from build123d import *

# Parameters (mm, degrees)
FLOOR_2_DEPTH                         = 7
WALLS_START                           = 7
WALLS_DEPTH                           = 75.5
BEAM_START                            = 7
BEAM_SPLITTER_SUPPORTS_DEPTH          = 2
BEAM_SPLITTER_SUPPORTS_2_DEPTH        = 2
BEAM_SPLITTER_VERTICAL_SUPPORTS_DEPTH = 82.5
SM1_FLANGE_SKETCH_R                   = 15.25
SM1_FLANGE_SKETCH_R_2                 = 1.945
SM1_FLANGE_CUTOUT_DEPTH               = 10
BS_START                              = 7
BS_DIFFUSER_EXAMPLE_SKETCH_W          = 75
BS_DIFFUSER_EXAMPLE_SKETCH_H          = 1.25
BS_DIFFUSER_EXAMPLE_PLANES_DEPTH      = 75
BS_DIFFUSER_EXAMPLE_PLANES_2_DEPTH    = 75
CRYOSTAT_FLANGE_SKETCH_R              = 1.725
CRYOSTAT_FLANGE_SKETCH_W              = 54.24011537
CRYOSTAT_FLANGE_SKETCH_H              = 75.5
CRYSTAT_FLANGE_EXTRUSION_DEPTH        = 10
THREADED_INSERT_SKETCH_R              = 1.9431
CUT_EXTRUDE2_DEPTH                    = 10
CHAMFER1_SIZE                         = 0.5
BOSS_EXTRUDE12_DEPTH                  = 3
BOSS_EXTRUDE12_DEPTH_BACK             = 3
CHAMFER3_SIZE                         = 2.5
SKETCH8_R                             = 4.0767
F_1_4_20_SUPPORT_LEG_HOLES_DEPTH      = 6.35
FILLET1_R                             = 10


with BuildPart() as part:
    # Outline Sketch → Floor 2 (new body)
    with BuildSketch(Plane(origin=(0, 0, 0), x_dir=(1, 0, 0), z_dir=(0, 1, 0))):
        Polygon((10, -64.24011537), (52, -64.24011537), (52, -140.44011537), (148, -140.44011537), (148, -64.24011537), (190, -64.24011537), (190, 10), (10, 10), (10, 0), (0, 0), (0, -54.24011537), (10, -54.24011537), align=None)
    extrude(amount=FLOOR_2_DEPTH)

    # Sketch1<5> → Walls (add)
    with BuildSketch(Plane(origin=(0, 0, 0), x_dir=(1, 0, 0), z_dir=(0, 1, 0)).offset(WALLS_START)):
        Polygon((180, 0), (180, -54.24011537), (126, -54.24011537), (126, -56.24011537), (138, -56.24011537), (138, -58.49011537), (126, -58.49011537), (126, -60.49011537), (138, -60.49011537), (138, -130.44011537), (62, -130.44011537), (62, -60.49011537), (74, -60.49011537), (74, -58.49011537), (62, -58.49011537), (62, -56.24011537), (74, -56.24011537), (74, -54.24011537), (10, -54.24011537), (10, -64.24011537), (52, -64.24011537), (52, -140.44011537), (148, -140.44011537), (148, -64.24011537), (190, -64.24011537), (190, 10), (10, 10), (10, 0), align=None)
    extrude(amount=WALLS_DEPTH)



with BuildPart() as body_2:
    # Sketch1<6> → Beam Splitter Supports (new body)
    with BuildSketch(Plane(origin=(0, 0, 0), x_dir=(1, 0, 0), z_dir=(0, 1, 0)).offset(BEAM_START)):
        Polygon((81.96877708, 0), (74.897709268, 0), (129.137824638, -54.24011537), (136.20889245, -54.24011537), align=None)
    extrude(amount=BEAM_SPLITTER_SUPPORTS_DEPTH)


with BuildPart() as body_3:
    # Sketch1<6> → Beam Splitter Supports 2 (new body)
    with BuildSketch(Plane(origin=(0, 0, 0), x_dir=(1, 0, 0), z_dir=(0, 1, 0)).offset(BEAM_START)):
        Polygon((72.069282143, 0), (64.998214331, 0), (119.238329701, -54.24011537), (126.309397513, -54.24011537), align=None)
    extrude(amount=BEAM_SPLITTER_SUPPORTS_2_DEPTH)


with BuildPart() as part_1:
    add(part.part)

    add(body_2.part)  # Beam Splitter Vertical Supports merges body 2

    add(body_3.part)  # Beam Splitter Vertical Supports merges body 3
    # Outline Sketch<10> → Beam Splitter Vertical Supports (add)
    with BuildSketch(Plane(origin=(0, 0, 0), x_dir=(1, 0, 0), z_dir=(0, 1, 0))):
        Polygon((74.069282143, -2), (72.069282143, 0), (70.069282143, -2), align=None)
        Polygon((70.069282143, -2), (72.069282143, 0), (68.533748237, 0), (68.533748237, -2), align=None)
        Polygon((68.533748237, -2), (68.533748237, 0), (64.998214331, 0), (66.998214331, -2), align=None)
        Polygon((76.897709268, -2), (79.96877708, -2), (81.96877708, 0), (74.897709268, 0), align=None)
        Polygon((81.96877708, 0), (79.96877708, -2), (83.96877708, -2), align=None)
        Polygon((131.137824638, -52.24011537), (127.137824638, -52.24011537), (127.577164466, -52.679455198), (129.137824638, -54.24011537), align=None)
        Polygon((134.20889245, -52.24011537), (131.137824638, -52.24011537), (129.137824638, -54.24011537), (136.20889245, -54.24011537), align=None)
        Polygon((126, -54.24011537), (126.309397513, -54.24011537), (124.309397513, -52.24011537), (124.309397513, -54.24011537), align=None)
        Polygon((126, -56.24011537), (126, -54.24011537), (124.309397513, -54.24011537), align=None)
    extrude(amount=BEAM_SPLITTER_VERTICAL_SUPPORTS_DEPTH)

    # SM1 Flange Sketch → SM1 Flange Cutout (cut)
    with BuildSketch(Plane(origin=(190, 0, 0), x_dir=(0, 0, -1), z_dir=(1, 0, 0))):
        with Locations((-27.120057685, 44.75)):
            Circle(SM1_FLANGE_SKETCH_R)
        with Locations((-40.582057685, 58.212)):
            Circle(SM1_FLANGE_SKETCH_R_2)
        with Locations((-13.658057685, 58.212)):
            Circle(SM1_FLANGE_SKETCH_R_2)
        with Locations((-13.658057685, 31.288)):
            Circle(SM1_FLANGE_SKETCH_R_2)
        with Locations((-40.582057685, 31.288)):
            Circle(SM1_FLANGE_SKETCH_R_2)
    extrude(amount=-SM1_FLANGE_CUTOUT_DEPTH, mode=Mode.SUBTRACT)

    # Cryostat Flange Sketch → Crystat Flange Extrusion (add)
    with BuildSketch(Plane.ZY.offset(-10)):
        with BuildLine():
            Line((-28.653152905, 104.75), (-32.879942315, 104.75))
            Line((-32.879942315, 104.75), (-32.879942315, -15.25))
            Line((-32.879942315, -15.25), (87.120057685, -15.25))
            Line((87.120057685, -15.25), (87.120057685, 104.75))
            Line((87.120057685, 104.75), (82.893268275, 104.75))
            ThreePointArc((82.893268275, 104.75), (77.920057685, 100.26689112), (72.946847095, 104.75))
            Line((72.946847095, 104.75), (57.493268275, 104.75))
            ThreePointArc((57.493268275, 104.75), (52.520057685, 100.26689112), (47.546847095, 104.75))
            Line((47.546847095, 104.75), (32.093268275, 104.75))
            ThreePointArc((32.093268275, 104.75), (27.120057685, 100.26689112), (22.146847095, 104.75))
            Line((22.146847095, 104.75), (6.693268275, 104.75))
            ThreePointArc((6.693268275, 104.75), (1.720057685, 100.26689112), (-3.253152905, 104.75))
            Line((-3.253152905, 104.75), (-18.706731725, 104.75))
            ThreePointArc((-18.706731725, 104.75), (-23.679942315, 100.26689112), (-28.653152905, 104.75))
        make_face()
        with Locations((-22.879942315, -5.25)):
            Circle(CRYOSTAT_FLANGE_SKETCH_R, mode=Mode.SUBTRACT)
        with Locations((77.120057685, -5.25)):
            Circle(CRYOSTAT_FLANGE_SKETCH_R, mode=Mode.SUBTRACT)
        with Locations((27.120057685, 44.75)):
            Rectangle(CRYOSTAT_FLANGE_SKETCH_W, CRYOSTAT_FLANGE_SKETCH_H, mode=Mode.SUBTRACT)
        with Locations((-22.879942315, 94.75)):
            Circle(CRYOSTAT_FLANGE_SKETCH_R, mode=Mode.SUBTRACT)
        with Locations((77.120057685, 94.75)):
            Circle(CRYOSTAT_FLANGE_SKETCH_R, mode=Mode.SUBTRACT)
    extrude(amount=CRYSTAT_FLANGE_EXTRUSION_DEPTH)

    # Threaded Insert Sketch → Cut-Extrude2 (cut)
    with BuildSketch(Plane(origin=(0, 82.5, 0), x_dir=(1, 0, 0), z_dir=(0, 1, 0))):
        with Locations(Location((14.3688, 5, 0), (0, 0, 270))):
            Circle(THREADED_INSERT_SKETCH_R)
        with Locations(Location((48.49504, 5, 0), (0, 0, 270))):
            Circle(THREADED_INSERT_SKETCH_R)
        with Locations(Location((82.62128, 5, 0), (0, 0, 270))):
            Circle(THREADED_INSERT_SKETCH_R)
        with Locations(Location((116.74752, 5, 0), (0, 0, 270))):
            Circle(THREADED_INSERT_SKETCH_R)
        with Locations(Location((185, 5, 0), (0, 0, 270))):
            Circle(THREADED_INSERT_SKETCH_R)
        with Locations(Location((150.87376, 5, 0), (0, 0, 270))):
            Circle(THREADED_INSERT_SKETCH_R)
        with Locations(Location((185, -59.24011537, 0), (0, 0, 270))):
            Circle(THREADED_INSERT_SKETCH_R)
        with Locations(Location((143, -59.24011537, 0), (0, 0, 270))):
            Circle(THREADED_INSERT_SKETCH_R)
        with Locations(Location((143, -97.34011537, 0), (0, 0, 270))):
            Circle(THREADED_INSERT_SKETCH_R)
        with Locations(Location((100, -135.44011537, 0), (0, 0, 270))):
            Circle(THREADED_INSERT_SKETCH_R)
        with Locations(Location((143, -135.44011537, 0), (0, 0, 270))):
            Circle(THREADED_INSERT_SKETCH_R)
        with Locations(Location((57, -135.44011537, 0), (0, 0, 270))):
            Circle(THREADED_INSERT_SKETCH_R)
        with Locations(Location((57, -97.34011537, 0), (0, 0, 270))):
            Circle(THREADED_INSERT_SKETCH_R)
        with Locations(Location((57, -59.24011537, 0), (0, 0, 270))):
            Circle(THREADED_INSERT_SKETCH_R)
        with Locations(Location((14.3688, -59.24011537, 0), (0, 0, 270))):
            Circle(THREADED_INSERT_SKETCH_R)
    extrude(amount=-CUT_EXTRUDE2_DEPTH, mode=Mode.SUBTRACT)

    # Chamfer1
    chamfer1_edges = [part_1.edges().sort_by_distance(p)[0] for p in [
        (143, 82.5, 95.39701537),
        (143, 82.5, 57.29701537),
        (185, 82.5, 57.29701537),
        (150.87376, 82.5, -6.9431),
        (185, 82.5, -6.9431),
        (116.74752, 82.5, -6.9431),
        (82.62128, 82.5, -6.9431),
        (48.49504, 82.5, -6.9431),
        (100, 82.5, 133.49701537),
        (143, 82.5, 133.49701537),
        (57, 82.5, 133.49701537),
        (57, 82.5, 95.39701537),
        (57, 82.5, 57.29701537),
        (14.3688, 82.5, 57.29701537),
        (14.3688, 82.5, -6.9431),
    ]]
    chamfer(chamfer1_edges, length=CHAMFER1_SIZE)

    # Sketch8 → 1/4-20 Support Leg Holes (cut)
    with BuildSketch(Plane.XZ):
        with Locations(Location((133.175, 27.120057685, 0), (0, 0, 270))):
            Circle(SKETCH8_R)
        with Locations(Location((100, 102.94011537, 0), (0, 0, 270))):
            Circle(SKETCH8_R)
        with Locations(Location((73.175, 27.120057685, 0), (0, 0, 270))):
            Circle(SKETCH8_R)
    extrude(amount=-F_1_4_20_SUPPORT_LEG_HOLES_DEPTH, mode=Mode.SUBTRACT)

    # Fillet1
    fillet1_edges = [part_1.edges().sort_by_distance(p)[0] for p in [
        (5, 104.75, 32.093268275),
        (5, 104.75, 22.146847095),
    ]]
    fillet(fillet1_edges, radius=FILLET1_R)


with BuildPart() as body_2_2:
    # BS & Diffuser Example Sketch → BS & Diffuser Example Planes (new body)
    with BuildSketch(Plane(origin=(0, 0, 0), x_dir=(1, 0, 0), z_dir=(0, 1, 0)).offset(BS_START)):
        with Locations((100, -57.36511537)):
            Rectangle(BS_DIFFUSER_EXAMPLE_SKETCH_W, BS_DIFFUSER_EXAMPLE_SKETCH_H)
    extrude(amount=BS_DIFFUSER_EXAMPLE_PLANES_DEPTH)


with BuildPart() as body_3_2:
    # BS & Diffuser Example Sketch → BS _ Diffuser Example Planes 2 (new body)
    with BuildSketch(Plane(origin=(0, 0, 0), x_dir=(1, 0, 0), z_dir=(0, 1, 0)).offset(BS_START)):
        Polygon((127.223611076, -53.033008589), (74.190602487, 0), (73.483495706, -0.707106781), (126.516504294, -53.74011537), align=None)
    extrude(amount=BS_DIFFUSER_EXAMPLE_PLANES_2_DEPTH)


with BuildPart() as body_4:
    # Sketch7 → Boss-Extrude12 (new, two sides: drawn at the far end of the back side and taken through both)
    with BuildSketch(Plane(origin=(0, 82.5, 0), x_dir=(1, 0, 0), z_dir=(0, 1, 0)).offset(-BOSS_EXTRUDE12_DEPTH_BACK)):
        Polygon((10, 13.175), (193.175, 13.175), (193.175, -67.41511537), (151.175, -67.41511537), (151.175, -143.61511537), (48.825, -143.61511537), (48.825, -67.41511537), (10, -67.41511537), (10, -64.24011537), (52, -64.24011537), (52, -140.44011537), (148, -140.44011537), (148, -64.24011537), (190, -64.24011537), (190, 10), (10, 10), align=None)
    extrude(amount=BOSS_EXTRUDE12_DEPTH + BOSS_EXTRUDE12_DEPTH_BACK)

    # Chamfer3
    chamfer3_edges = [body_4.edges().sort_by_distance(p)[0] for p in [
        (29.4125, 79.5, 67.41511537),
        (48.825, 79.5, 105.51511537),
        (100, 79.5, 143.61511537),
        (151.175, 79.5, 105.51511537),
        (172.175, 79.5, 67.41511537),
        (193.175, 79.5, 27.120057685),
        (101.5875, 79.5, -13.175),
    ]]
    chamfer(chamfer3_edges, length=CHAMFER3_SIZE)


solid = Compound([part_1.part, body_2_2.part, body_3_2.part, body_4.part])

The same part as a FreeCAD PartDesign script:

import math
import FreeCAD as App
import Part
import Sketcher

V = App.Vector
Q = App.Units.Quantity


def edges_at(feature, points):
    """Names of the edges that pass closest to the given points."""
    edges = feature.Shape.Edges
    near = lambda p: min(range(len(edges)), key=lambda i: edges[i].distToShape(Part.Vertex(*p))[0])
    return sorted({f"Edge{near(p) + 1}" for p in points})


def add_polygon(sketch, points):
    """Adds a closed chain of lines whose ends are joined by coincident constraints."""
    first, n = sketch.GeometryCount, len(points)
    for a, b in zip(points, points[1:] + points[:1]):
        sketch.addGeometry(Part.LineSegment(App.Vector(*a, 0), App.Vector(*b, 0)), False)
    for i in range(n):
        sketch.addConstraint(Sketcher.Constraint("Coincident", first + i, 2, first + (i + 1) % n, 1))

doc = App.newDocument("Part")
body = doc.addObject("PartDesign::Body", "Body")

sketch1 = body.newObject("Sketcher::SketchObject", "Sketch")
sketch1.AttachmentSupport = (doc.getObject("XZ_Plane"), [""])
sketch1.MapMode = "FlatFace"
add_polygon(sketch1, [(10, 64), (52, 64), (52, 140), (148, 140), (148, 64), (190, 64), (190, -10), (10, -10), (10, 0), (0, 0), (0, 54), (10, 54)])
sketch1.addConstraint(Sketcher.Constraint("Horizontal", 0))
sketch1.addConstraint(Sketcher.Constraint("Vertical", 1))
sketch1.addConstraint(Sketcher.Constraint("Horizontal", 2))
sketch1.addConstraint(Sketcher.Constraint("Vertical", 3))
sketch1.addConstraint(Sketcher.Constraint("Horizontal", 4))
sketch1.addConstraint(Sketcher.Constraint("Vertical", 5))
sketch1.addConstraint(Sketcher.Constraint("Horizontal", 6))
sketch1.addConstraint(Sketcher.Constraint("Vertical", 7))
sketch1.addConstraint(Sketcher.Constraint("Horizontal", 8))
sketch1.addConstraint(Sketcher.Constraint("Vertical", 9))
sketch1.addConstraint(Sketcher.Constraint("Horizontal", 10))
sketch1.addConstraint(Sketcher.Constraint("Vertical", 11))
sketch1.addConstraint(Sketcher.Constraint("Coincident", 8, 2, -1, 1))
sketch1.addConstraint(Sketcher.Constraint("Horizontal", 0, 2, 3, 2))
sketch1.addConstraint(Sketcher.Constraint("Vertical", 7, 2, 10, 2))
sketch1.addConstraint(Sketcher.Constraint("Equal", 0, 4))
sketch1.addConstraint(Sketcher.Constraint("Equal", 10, 7))
sketch1.addConstraint(Sketcher.Constraint("Equal", 7, 11))
sketch1.addConstraint(Sketcher.Constraint("DistanceX", 0, 1, 0, 2, 42.0))
sketch1.addConstraint(Sketcher.Constraint("DistanceX", 2, 1, 2, 2, 96.0))
sketch1.addConstraint(Sketcher.Constraint("DistanceX", 8, 2, 8, 1, 10.0))
sketch1.addConstraint(Sketcher.Constraint("DistanceY", 1, 1, 1, 2, 76.2))
sketch1.addConstraint(Sketcher.Constraint("DistanceY", 5, 2, 5, 1, 74.240115))
pad1 = body.newObject("PartDesign::Pad", "Pad")
pad1.Profile = sketch1
pad1.Length = 7
pad1.Reversed = True

sketch2 = body.newObject("Sketcher::SketchObject", "Sketch001")
sketch2.AttachmentSupport = (doc.getObject("XZ_Plane"), [""])
sketch2.MapMode = "FlatFace"
sketch2.AttachmentOffset = App.Placement(V(0, 0, -7), App.Rotation())
add_polygon(sketch2, [(180, 0), (180, 54.2), (126, 54.2), (126, 56.2), (138, 56.2), (138, 58.5), (126, 58.5), (126, 60.5), (138, 60.5), (138, 130.4), (62, 130.4), (62, 60.5), (74, 60.5), (74, 58.5), (62, 58.5), (62, 56.2), (74, 56.2), (74, 54.2), (10, 54.2), (10, 64.2), (52, 64.2), (52, 140.4), (148, 140.4), (148, 64.2), (190, 64.2), (190, -10), (10, -10), (10, 0)])
sketch2.addConstraint(Sketcher.Constraint("Vertical", 0))
sketch2.addConstraint(Sketcher.Constraint("Horizontal", 1))
sketch2.addConstraint(Sketcher.Constraint("Vertical", 2))
sketch2.addConstraint(Sketcher.Constraint("Horizontal", 3))
sketch2.addConstraint(Sketcher.Constraint("Vertical", 4))
sketch2.addConstraint(Sketcher.Constraint("Horizontal", 5))
sketch2.addConstraint(Sketcher.Constraint("Vertical", 6))
sketch2.addConstraint(Sketcher.Constraint("Horizontal", 7))
sketch2.addConstraint(Sketcher.Constraint("Vertical", 8))
sketch2.addConstraint(Sketcher.Constraint("Horizontal", 9))
sketch2.addConstraint(Sketcher.Constraint("Vertical", 10))
sketch2.addConstraint(Sketcher.Constraint("Horizontal", 11))
sketch2.addConstraint(Sketcher.Constraint("Vertical", 12))
sketch2.addConstraint(Sketcher.Constraint("Horizontal", 13))
sketch2.addConstraint(Sketcher.Constraint("Vertical", 14))
sketch2.addConstraint(Sketcher.Constraint("Horizontal", 15))
sketch2.addConstraint(Sketcher.Constraint("Vertical", 16))
sketch2.addConstraint(Sketcher.Constraint("Horizontal", 17))
sketch2.addConstraint(Sketcher.Constraint("Vertical", 18))
sketch2.addConstraint(Sketcher.Constraint("Horizontal", 19))
sketch2.addConstraint(Sketcher.Constraint("Vertical", 20))
sketch2.addConstraint(Sketcher.Constraint("Horizontal", 21))
sketch2.addConstraint(Sketcher.Constraint("Vertical", 22))
sketch2.addConstraint(Sketcher.Constraint("Horizontal", 23))
sketch2.addConstraint(Sketcher.Constraint("Vertical", 24))
sketch2.addConstraint(Sketcher.Constraint("Horizontal", 25))
sketch2.addConstraint(Sketcher.Constraint("Vertical", 26))
sketch2.addConstraint(Sketcher.Constraint("Horizontal", 27))
sketch2.addConstraint(Sketcher.Constraint("PointOnObject", 26, 2, -1))
sketch2.addConstraint(Sketcher.Constraint("Horizontal", 7, 2, 10, 2))
sketch2.addConstraint(Sketcher.Constraint("Horizontal", 5, 2, 12, 2))
sketch2.addConstraint(Sketcher.Constraint("Horizontal", 3, 2, 14, 2))
sketch2.addConstraint(Sketcher.Constraint("Horizontal", 1, 2, 16, 2))
sketch2.addConstraint(Sketcher.Constraint("Horizontal", 19, 2, 22, 2))
sketch2.addConstraint(Sketcher.Constraint("Vertical", 2, 2, 5, 2))
sketch2.addConstraint(Sketcher.Constraint("Vertical", 4, 2, 7, 2))
sketch2.addConstraint(Sketcher.Constraint("Vertical", 10, 2, 13, 2))
sketch2.addConstraint(Sketcher.Constraint("Vertical", 12, 2, 15, 2))
sketch2.addConstraint(Sketcher.Constraint("Vertical", 18, 2, 25, 2))
sketch2.addConstraint(Sketcher.Constraint("Equal", 7, 11))
sketch2.addConstraint(Sketcher.Constraint("Equal", 19, 23))
sketch2.addConstraint(Sketcher.Constraint("Equal", 2, 6))
sketch2.addConstraint(Sketcher.Constraint("Equal", 18, 26))
sketch2.addConstraint(Sketcher.Constraint("DistanceX", 1, 2, 1, 1, 54.0))
sketch2.addConstraint(Sketcher.Constraint("DistanceX", 3, 1, 3, 2, 12.0))
sketch2.addConstraint(Sketcher.Constraint("DistanceX", 9, 2, 9, 1, 76.0))
sketch2.addConstraint(Sketcher.Constraint("DistanceX", 17, 2, 17, 1, 64.0))
sketch2.addConstraint(Sketcher.Constraint("DistanceX", 19, 1, 19, 2, 42.0))
sketch2.addConstraint(Sketcher.Constraint("DistanceX", 21, 1, 21, 2, 96.0))
sketch2.addConstraint(Sketcher.Constraint("DistanceY", 2, 1, 2, 2, 2.0))
sketch2.addConstraint(Sketcher.Constraint("DistanceY", 18, 1, 18, 2, 10.0))
sketch2.addConstraint(Sketcher.Constraint("DistanceY", 20, 1, 20, 2, 76.2))
sketch2.addConstraint(Sketcher.Constraint("DistanceX", -1, 1, 0, 2, 180.0))
sketch2.addConstraint(Sketcher.Constraint("DistanceY", 9, 2, 20, 2, 10.0))
sketch2.addConstraint(Sketcher.Constraint("DistanceY", 4, 1, 4, 2, 2.25))
sketch2.addConstraint(Sketcher.Constraint("DistanceY", 0, 1, 0, 2, 54.240115))
pad2 = body.newObject("PartDesign::Pad", "Pad001")
pad2.Profile = sketch2
pad2.Length = 75.5
pad2.Reversed = True
body2 = doc.addObject("PartDesign::Body", "Body001")

sketch3 = body2.newObject("Sketcher::SketchObject", "Sketch002")
sketch3.AttachmentSupport = (doc.getObject("XZ_Plane001"), [""])
sketch3.MapMode = "FlatFace"
sketch3.AttachmentOffset = App.Placement(V(0, 0, -7), App.Rotation())
add_polygon(sketch3, [(82, 0), (75, 0), (129, 54), (136, 54)])
sketch3.addConstraint(Sketcher.Constraint("Horizontal", 0))
sketch3.addConstraint(Sketcher.Constraint("Horizontal", 2))
sketch3.addConstraint(Sketcher.Constraint("PointOnObject", 0, 2, -1))
sketch3.addConstraint(Sketcher.Constraint("Parallel", 1, 3))
sketch3.addConstraint(Sketcher.Constraint("Angle", 1, Q("45 deg")))
sketch3.addConstraint(Sketcher.Constraint("DistanceX", 0, 2, 0, 1, 7.071068))
sketch3.addConstraint(Sketcher.Constraint("DistanceX", -1, 1, 0, 2, 74.897709))
sketch3.addConstraint(Sketcher.Constraint("Distance", 1, 76.707107))
pad3 = body2.newObject("PartDesign::Pad", "Pad002")
pad3.Profile = sketch3
pad3.Length = 2
pad3.Reversed = True
body3 = doc.addObject("PartDesign::Body", "Body002")

sketch4 = body3.newObject("Sketcher::SketchObject", "Sketch003")
sketch4.AttachmentSupport = (doc.getObject("XZ_Plane002"), [""])
sketch4.MapMode = "FlatFace"
sketch4.AttachmentOffset = App.Placement(V(0, 0, -7), App.Rotation())
add_polygon(sketch4, [(72, 0), (65, 0), (119, 54), (126, 54)])
sketch4.addConstraint(Sketcher.Constraint("Horizontal", 0))
sketch4.addConstraint(Sketcher.Constraint("Horizontal", 2))
sketch4.addConstraint(Sketcher.Constraint("PointOnObject", 0, 2, -1))
sketch4.addConstraint(Sketcher.Constraint("Parallel", 1, 3))
sketch4.addConstraint(Sketcher.Constraint("Angle", 1, Q("45 deg")))
sketch4.addConstraint(Sketcher.Constraint("DistanceX", 0, 2, 0, 1, 7.071068))
sketch4.addConstraint(Sketcher.Constraint("DistanceX", -1, 1, 1, 2, 119.23833))
sketch4.addConstraint(Sketcher.Constraint("Distance", 1, 76.707107))
pad4 = body3.newObject("PartDesign::Pad", "Pad003")
pad4.Profile = sketch4
pad4.Length = 2
pad4.Reversed = True
doc.recompute()

boolean = body.newObject("PartDesign::Boolean", "Boolean")
boolean.Type = "Fuse"
boolean.addObjects([body2])
doc.recompute()

boolean2 = body.newObject("PartDesign::Boolean", "Boolean001")
boolean2.Type = "Fuse"
boolean2.addObjects([body3])

sketch5 = body.newObject("Sketcher::SketchObject", "Sketch004")
sketch5.AttachmentSupport = (doc.getObject("XZ_Plane"), [""])
sketch5.MapMode = "FlatFace"
add_polygon(sketch5, [(74.07, 2), (72.07, 0), (65, 0), (67, 2)])
add_polygon(sketch5, [(76.9, 2), (83.97, 2), (81.97, 0), (74.9, 0)])
add_polygon(sketch5, [(127.14, 52.24), (129.14, 54.24), (136.21, 54.24), (134.21, 52.24)])
add_polygon(sketch5, [(126.31, 54.24), (124.31, 52.24), (124.31, 54.24), (126, 56.24), (126, 54.24)])
sketch5.addConstraint(Sketcher.Constraint("Horizontal", 1))
sketch5.addConstraint(Sketcher.Constraint("Horizontal", 3))
sketch5.addConstraint(Sketcher.Constraint("Horizontal", 4))
sketch5.addConstraint(Sketcher.Constraint("Horizontal", 6))
sketch5.addConstraint(Sketcher.Constraint("Horizontal", 9))
sketch5.addConstraint(Sketcher.Constraint("Horizontal", 11))
sketch5.addConstraint(Sketcher.Constraint("Vertical", 13))
sketch5.addConstraint(Sketcher.Constraint("Vertical", 15))
sketch5.addConstraint(Sketcher.Constraint("Horizontal", 16))
sketch5.addConstraint(Sketcher.Constraint("PointOnObject", 0, 2, -1))
sketch5.addConstraint(Sketcher.Constraint("PointOnObject", 5, 2, -1))
sketch5.addConstraint(Sketcher.Constraint("Parallel", 0, 2))
sketch5.addConstraint(Sketcher.Constraint("Parallel", 2, 5))
sketch5.addConstraint(Sketcher.Constraint("Parallel", 5, 7))
sketch5.addConstraint(Sketcher.Constraint("Parallel", 7, 8))
sketch5.addConstraint(Sketcher.Constraint("Parallel", 8, 10))
sketch5.addConstraint(Sketcher.Constraint("Parallel", 10, 12))
sketch5.addConstraint(Sketcher.Constraint("Horizontal", 3, 2, 4, 2))
sketch5.addConstraint(Sketcher.Constraint("Horizontal", 11, 2, 12, 2))
sketch5.addConstraint(Sketcher.Constraint("Horizontal", 9, 2, 13, 2))
sketch5.addConstraint(Sketcher.Constraint("Horizontal", 13, 2, 15, 2))
sketch5.addConstraint(Sketcher.Constraint("Equal", 3, 4))
sketch5.addConstraint(Sketcher.Constraint("Equal", 6, 9))
sketch5.addConstraint(Sketcher.Constraint("Equal", 13, 15))
sketch5.addConstraint(Sketcher.Constraint("Equal", 7, 8))
sketch5.addConstraint(Sketcher.Constraint("DistanceY", 13, 1, 13, 2, 2.0))
sketch5.addConstraint(Sketcher.Constraint("Angle", 0, Q("-135 deg")))
sketch5.addConstraint(Sketcher.Constraint("DistanceX", -1, 1, 14, 2, 126.0))
sketch5.addConstraint(Sketcher.Constraint("DistanceX", 1, 2, 1, 1, 7.071068))
sketch5.addConstraint(Sketcher.Constraint("DistanceX", 16, 1, 16, 2, 0.309398))
sketch5.addConstraint(Sketcher.Constraint("DistanceX", -1, 1, 6, 2, 74.897709))
sketch5.addConstraint(Sketcher.Constraint("DistanceX", 3, 2, 9, 2, 62.13961))
sketch5.addConstraint(Sketcher.Constraint("DistanceX", -1, 1, 0, 2, 72.069282))
sketch5.addConstraint(Sketcher.Constraint("DistanceY", -1, 1, 8, 2, 54.240115))
pad5 = body.newObject("PartDesign::Pad", "Pad004")
pad5.Profile = sketch5
pad5.Length = 82.5
pad5.Reversed = True

sketch6 = body.newObject("Sketcher::SketchObject", "Sketch005")
sketch6.AttachmentSupport = (doc.getObject("YZ_Plane"), [""])
sketch6.MapMode = "FlatFace"
sketch6.AttachmentOffset = App.Placement(V(0, 0, 190), App.Rotation())
sketch6.addGeometry(Part.Circle(V(44.8, 27.1, 0), V(0, 0, 1), 15.2), False)
sketch6.addGeometry(Part.Circle(V(58.2, 40.6, 0), V(0, 0, 1), 1.9), False)
sketch6.addGeometry(Part.Circle(V(58.2, 13.7, 0), V(0, 0, 1), 1.9), False)
sketch6.addGeometry(Part.Circle(V(31.3, 13.7, 0), V(0, 0, 1), 1.9), False)
sketch6.addGeometry(Part.Circle(V(31.3, 40.6, 0), V(0, 0, 1), 1.9), False)
sketch6.addConstraint(Sketcher.Constraint("Equal", 1, 2))
sketch6.addConstraint(Sketcher.Constraint("Equal", 2, 3))
sketch6.addConstraint(Sketcher.Constraint("Equal", 3, 4))
sketch6.addConstraint(Sketcher.Constraint("Horizontal", 2, 3, 3, 3))
sketch6.addConstraint(Sketcher.Constraint("Horizontal", 1, 3, 4, 3))
sketch6.addConstraint(Sketcher.Constraint("Vertical", 1, 3, 2, 3))
sketch6.addConstraint(Sketcher.Constraint("Vertical", 3, 3, 4, 3))
sketch6.addConstraint(Sketcher.Constraint("Diameter", 0, 30.5))
sketch6.addConstraint(Sketcher.Constraint("Diameter", 1, 3.89))
sketch6.addConstraint(Sketcher.Constraint("DistanceX", -1, 1, 0, 3, 44.75))
sketch6.addConstraint(Sketcher.Constraint("DistanceX", -1, 1, 1, 3, 58.212))
sketch6.addConstraint(Sketcher.Constraint("DistanceX", -1, 1, 3, 3, 31.288))
sketch6.addConstraint(Sketcher.Constraint("DistanceY", 0, 3, 1, 3, 13.462))
sketch6.addConstraint(Sketcher.Constraint("DistanceY", 2, 3, 0, 3, 13.462))
sketch6.addConstraint(Sketcher.Constraint("DistanceY", -1, 1, 0, 3, 27.120058))
pocket1 = body.newObject("PartDesign::Pocket", "Pocket")
pocket1.Profile = sketch6
pocket1.Length = 10

sketch7 = body.newObject("Sketcher::SketchObject", "Sketch006")
sketch7.AttachmentSupport = (doc.getObject("YZ_Plane"), [""])
sketch7.MapMode = "FlatFace"
sketch7.AttachmentOffset = App.Placement(V(0, 0, 10), App.Rotation())
sketch7.addGeometry(Part.LineSegment(V(104.8, -28.7, 0), V(104.8, -32.9, 0)), False)
sketch7.addGeometry(Part.LineSegment(V(104.8, -32.9, 0), V(-15.2, -32.9, 0)), False)
sketch7.addGeometry(Part.LineSegment(V(-15.2, -32.9, 0), V(-15.2, 87.1, 0)), False)
sketch7.addGeometry(Part.LineSegment(V(-15.2, 87.1, 0), V(104.8, 87.1, 0)), False)
sketch7.addGeometry(Part.LineSegment(V(104.8, 87.1, 0), V(104.8, 82.9, 0)), False)
sketch7.addGeometry(Part.ArcOfCircle(Part.Circle(V(105.3, 77.9, 0), V(0, 0, 1), 5), math.radians(96), math.radians(264)), False)
sketch7.addGeometry(Part.LineSegment(V(104.8, 72.9, 0), V(104.8, 57.5, 0)), False)
sketch7.addGeometry(Part.ArcOfCircle(Part.Circle(V(105.3, 52.5, 0), V(0, 0, 1), 5), math.radians(96), math.radians(264)), False)
sketch7.addGeometry(Part.LineSegment(V(104.8, 47.5, 0), V(104.8, 32.1, 0)), False)
sketch7.addGeometry(Part.ArcOfCircle(Part.Circle(V(105.3, 27.1, 0), V(0, 0, 1), 5), math.radians(96), math.radians(264)), False)
sketch7.addGeometry(Part.LineSegment(V(104.8, 22.1, 0), V(104.8, 6.7, 0)), False)
sketch7.addGeometry(Part.ArcOfCircle(Part.Circle(V(105.3, 1.7, 0), V(0, 0, 1), 5), math.radians(96), math.radians(264)), False)
sketch7.addGeometry(Part.LineSegment(V(104.8, -3.3, 0), V(104.8, -18.7, 0)), False)
sketch7.addGeometry(Part.ArcOfCircle(Part.Circle(V(105.3, -23.7, 0), V(0, 0, 1), 5), math.radians(96), math.radians(264)), False)
sketch7.addGeometry(Part.Circle(V(-5.2, -22.9, 0), V(0, 0, 1), 1.7), False)
sketch7.addGeometry(Part.Circle(V(-5.2, 77.1, 0), V(0, 0, 1), 1.7), False)
sketch7.addGeometry(Part.Circle(V(94.8, -22.9, 0), V(0, 0, 1), 1.7), False)
add_polygon(sketch7, [(7, 54.2), (7, 0), (82.5, 0), (82.5, 54.2)])
sketch7.addGeometry(Part.Circle(V(94.8, 77.1, 0), V(0, 0, 1), 1.7), False)
sketch7.addConstraint(Sketcher.Constraint("Coincident", 0, 2, 1, 1))
sketch7.addConstraint(Sketcher.Constraint("Coincident", 1, 2, 2, 1))
sketch7.addConstraint(Sketcher.Constraint("Coincident", 2, 2, 3, 1))
sketch7.addConstraint(Sketcher.Constraint("Coincident", 3, 2, 4, 1))
sketch7.addConstraint(Sketcher.Constraint("Coincident", 4, 2, 5, 1))
sketch7.addConstraint(Sketcher.Constraint("Coincident", 5, 2, 6, 1))
sketch7.addConstraint(Sketcher.Constraint("Coincident", 6, 2, 7, 1))
sketch7.addConstraint(Sketcher.Constraint("Coincident", 7, 2, 8, 1))
sketch7.addConstraint(Sketcher.Constraint("Coincident", 8, 2, 9, 1))
sketch7.addConstraint(Sketcher.Constraint("Coincident", 9, 2, 10, 1))
sketch7.addConstraint(Sketcher.Constraint("Coincident", 10, 2, 11, 1))
sketch7.addConstraint(Sketcher.Constraint("Coincident", 11, 2, 12, 1))
sketch7.addConstraint(Sketcher.Constraint("Coincident", 12, 2, 13, 1))
sketch7.addConstraint(Sketcher.Constraint("Coincident", 13, 2, 0, 1))
sketch7.addConstraint(Sketcher.Constraint("Vertical", 0))
sketch7.addConstraint(Sketcher.Constraint("Horizontal", 1))
sketch7.addConstraint(Sketcher.Constraint("Vertical", 2))
sketch7.addConstraint(Sketcher.Constraint("Horizontal", 3))
sketch7.addConstraint(Sketcher.Constraint("Vertical", 4))
sketch7.addConstraint(Sketcher.Constraint("Vertical", 6))
sketch7.addConstraint(Sketcher.Constraint("Vertical", 8))
sketch7.addConstraint(Sketcher.Constraint("Vertical", 10))
sketch7.addConstraint(Sketcher.Constraint("Vertical", 12))
sketch7.addConstraint(Sketcher.Constraint("Vertical", 17))
sketch7.addConstraint(Sketcher.Constraint("Horizontal", 18))
sketch7.addConstraint(Sketcher.Constraint("Vertical", 19))
sketch7.addConstraint(Sketcher.Constraint("Horizontal", 20))
sketch7.addConstraint(Sketcher.Constraint("Equal", 5, 7))
sketch7.addConstraint(Sketcher.Constraint("Equal", 7, 9))
sketch7.addConstraint(Sketcher.Constraint("Equal", 9, 11))
sketch7.addConstraint(Sketcher.Constraint("Equal", 11, 13))
sketch7.addConstraint(Sketcher.Constraint("Equal", 14, 15))
sketch7.addConstraint(Sketcher.Constraint("Equal", 15, 16))
sketch7.addConstraint(Sketcher.Constraint("Equal", 16, 21))
sketch7.addConstraint(Sketcher.Constraint("PointOnObject", 17, 2, -1))
sketch7.addConstraint(Sketcher.Constraint("Horizontal", 14, 3, 16, 3))
sketch7.addConstraint(Sketcher.Constraint("Horizontal", 15, 3, 21, 3))
sketch7.addConstraint(Sketcher.Constraint("Vertical", 5, 3, 7, 3))
sketch7.addConstraint(Sketcher.Constraint("Vertical", 7, 3, 9, 3))
sketch7.addConstraint(Sketcher.Constraint("Vertical", 9, 3, 11, 3))
sketch7.addConstraint(Sketcher.Constraint("Vertical", 11, 3, 13, 3))
sketch7.addConstraint(Sketcher.Constraint("Vertical", 14, 3, 15, 3))
sketch7.addConstraint(Sketcher.Constraint("Vertical", 16, 3, 21, 3))
sketch7.addConstraint(Sketcher.Constraint("Vertical", 0, 2, 3, 2))
sketch7.addConstraint(Sketcher.Constraint("Vertical", 4, 2, 5, 2))
sketch7.addConstraint(Sketcher.Constraint("Vertical", 6, 2, 7, 2))
sketch7.addConstraint(Sketcher.Constraint("Vertical", 8, 2, 9, 2))
sketch7.addConstraint(Sketcher.Constraint("Vertical", 10, 2, 11, 2))
sketch7.addConstraint(Sketcher.Constraint("Equal", 3, 2))
sketch7.addConstraint(Sketcher.Constraint("Equal", 0, 4))
sketch7.addConstraint(Sketcher.Constraint("Equal", 6, 8))
sketch7.addConstraint(Sketcher.Constraint("Equal", 8, 10))
sketch7.addConstraint(Sketcher.Constraint("Equal", 10, 12))
sketch7.addConstraint(Sketcher.Constraint("Radius", 5, 5.0))
sketch7.addConstraint(Sketcher.Constraint("Diameter", 14, 3.45))
sketch7.addConstraint(Sketcher.Constraint("DistanceX", 1, 2, 1, 1, 120.0))
sketch7.addConstraint(Sketcher.Constraint("DistanceX", 18, 1, 18, 2, 75.5))
sketch7.addConstraint(Sketcher.Constraint("DistanceX", -1, 1, 17, 2, 7.0))
sketch7.addConstraint(Sketcher.Constraint("DistanceY", 14, 3, 9, 3, 50.0))
sketch7.addConstraint(Sketcher.Constraint("DistanceY", 14, 3, 15, 3, 100.0))
sketch7.addConstraint(Sketcher.Constraint("DistanceX", 14, 3, 16, 3, 100.0))
sketch7.addConstraint(Sketcher.Constraint("DistanceX", 16, 3, 0, 2, 10.0))
sketch7.addConstraint(Sketcher.Constraint("DistanceY", 7, 3, 5, 3, 25.4))
sketch7.addConstraint(Sketcher.Constraint("DistanceX", 14, 3, -1, 1, 5.25))
sketch7.addConstraint(Sketcher.Constraint("DistanceY", 0, 2, 0, 1, 4.226789))
sketch7.addConstraint(Sketcher.Constraint("DistanceY", 17, 2, 17, 1, 54.240115))
sketch7.addConstraint(Sketcher.Constraint("DistanceY", -1, 1, 4, 2, 82.893268))
pad6 = body.newObject("PartDesign::Pad", "Pad005")
pad6.Profile = sketch7
pad6.Length = 10
pad6.Reversed = True

sketch8 = body.newObject("Sketcher::SketchObject", "Sketch007")
sketch8.AttachmentSupport = (doc.getObject("XZ_Plane"), [""])
sketch8.MapMode = "FlatFace"
sketch8.AttachmentOffset = App.Placement(V(0, 0, -82.5), App.Rotation())
sketch8.addGeometry(Part.Circle(V(14.4, -5, 0), V(0, 0, 1), 1.9), False)
sketch8.addGeometry(Part.Circle(V(48.5, -5, 0), V(0, 0, 1), 1.9), False)
sketch8.addGeometry(Part.Circle(V(82.6, -5, 0), V(0, 0, 1), 1.9), False)
sketch8.addGeometry(Part.Circle(V(116.7, -5, 0), V(0, 0, 1), 1.9), False)
sketch8.addGeometry(Part.Circle(V(185, -5, 0), V(0, 0, 1), 1.9), False)
sketch8.addGeometry(Part.Circle(V(150.9, -5, 0), V(0, 0, 1), 1.9), False)
sketch8.addGeometry(Part.Circle(V(185, 59.2, 0), V(0, 0, 1), 1.9), False)
sketch8.addGeometry(Part.Circle(V(143, 59.2, 0), V(0, 0, 1), 1.9), False)
sketch8.addGeometry(Part.Circle(V(143, 97.3, 0), V(0, 0, 1), 1.9), False)
sketch8.addGeometry(Part.Circle(V(100, 135.4, 0), V(0, 0, 1), 1.9), False)
sketch8.addGeometry(Part.Circle(V(143, 135.4, 0), V(0, 0, 1), 1.9), False)
sketch8.addGeometry(Part.Circle(V(57, 135.4, 0), V(0, 0, 1), 1.9), False)
sketch8.addGeometry(Part.Circle(V(57, 97.3, 0), V(0, 0, 1), 1.9), False)
sketch8.addGeometry(Part.Circle(V(57, 59.2, 0), V(0, 0, 1), 1.9), False)
sketch8.addGeometry(Part.Circle(V(14.4, 59.2, 0), V(0, 0, 1), 1.9), False)
sketch8.addConstraint(Sketcher.Constraint("Equal", 0, 1))
sketch8.addConstraint(Sketcher.Constraint("Equal", 1, 2))
sketch8.addConstraint(Sketcher.Constraint("Equal", 2, 3))
sketch8.addConstraint(Sketcher.Constraint("Equal", 3, 4))
sketch8.addConstraint(Sketcher.Constraint("Equal", 4, 5))
sketch8.addConstraint(Sketcher.Constraint("Equal", 5, 6))
sketch8.addConstraint(Sketcher.Constraint("Equal", 6, 7))
sketch8.addConstraint(Sketcher.Constraint("Equal", 7, 8))
sketch8.addConstraint(Sketcher.Constraint("Equal", 8, 9))
sketch8.addConstraint(Sketcher.Constraint("Equal", 9, 10))
sketch8.addConstraint(Sketcher.Constraint("Equal", 10, 11))
sketch8.addConstraint(Sketcher.Constraint("Equal", 11, 12))
sketch8.addConstraint(Sketcher.Constraint("Equal", 12, 13))
sketch8.addConstraint(Sketcher.Constraint("Equal", 13, 14))
sketch8.addConstraint(Sketcher.Constraint("Horizontal", 0, 3, 1, 3))
sketch8.addConstraint(Sketcher.Constraint("Horizontal", 1, 3, 2, 3))
sketch8.addConstraint(Sketcher.Constraint("Horizontal", 2, 3, 3, 3))
sketch8.addConstraint(Sketcher.Constraint("Horizontal", 3, 3, 4, 3))
sketch8.addConstraint(Sketcher.Constraint("Horizontal", 4, 3, 5, 3))
sketch8.addConstraint(Sketcher.Constraint("Horizontal", 6, 3, 7, 3))
sketch8.addConstraint(Sketcher.Constraint("Horizontal", 9, 3, 10, 3))
sketch8.addConstraint(Sketcher.Constraint("Horizontal", 10, 3, 11, 3))
sketch8.addConstraint(Sketcher.Constraint("Horizontal", 8, 3, 12, 3))
sketch8.addConstraint(Sketcher.Constraint("Horizontal", 7, 3, 13, 3))
sketch8.addConstraint(Sketcher.Constraint("Horizontal", 13, 3, 14, 3))
sketch8.addConstraint(Sketcher.Constraint("Vertical", 4, 3, 6, 3))
sketch8.addConstraint(Sketcher.Constraint("Vertical", 7, 3, 8, 3))
sketch8.addConstraint(Sketcher.Constraint("Vertical", 8, 3, 10, 3))
sketch8.addConstraint(Sketcher.Constraint("Vertical", 11, 3, 12, 3))
sketch8.addConstraint(Sketcher.Constraint("Vertical", 12, 3, 13, 3))
sketch8.addConstraint(Sketcher.Constraint("Vertical", 0, 3, 14, 3))
sketch8.addConstraint(Sketcher.Constraint("DistanceY", 0, 3, -1, 1, 5.0))
sketch8.addConstraint(Sketcher.Constraint("DistanceX", -1, 1, 4, 3, 185.0))
sketch8.addConstraint(Sketcher.Constraint("DistanceX", -1, 1, 7, 3, 143.0))
sketch8.addConstraint(Sketcher.Constraint("DistanceX", -1, 1, 9, 3, 100.0))
sketch8.addConstraint(Sketcher.Constraint("DistanceX", -1, 1, 11, 3, 57.0))
sketch8.addConstraint(Sketcher.Constraint("Diameter", 0, 3.8862))
sketch8.addConstraint(Sketcher.Constraint("DistanceY", 7, 3, 8, 3, 38.1))
sketch8.addConstraint(Sketcher.Constraint("DistanceY", 8, 3, 9, 3, 38.1))
sketch8.addConstraint(Sketcher.Constraint("DistanceX", -1, 1, 0, 3, 14.3688))
sketch8.addConstraint(Sketcher.Constraint("DistanceX", -1, 1, 1, 3, 48.49504))
sketch8.addConstraint(Sketcher.Constraint("DistanceX", -1, 1, 2, 3, 82.62128))
sketch8.addConstraint(Sketcher.Constraint("DistanceX", -1, 1, 3, 3, 116.74752))
sketch8.addConstraint(Sketcher.Constraint("DistanceX", -1, 1, 5, 3, 150.87376))
sketch8.addConstraint(Sketcher.Constraint("DistanceY", -1, 1, 6, 3, 59.240115))
pocket2 = body.newObject("PartDesign::Pocket", "Pocket001")
pocket2.Profile = sketch8
pocket2.Length = 10
pocket2.Reversed = True
doc.recompute()

chamfer = body.newObject("PartDesign::Chamfer", "Chamfer")
chamfer.Base = (pocket2, edges_at(pocket2, [
    (143, 82.5, 95.397),
    (143, 82.5, 57.297),
    (185, 82.5, 57.297),
    (150.874, 82.5, -6.943),
    (185, 82.5, -6.943),
    (116.748, 82.5, -6.943),
    (82.621, 82.5, -6.943),
    (48.495, 82.5, -6.943),
    (100, 82.5, 133.497),
    (143, 82.5, 133.497),
    (57, 82.5, 133.497),
    (57, 82.5, 95.397),
    (57, 82.5, 57.297),
    (14.369, 82.5, 57.297),
    (14.369, 82.5, -6.943),
]))
chamfer.Size = 0.5

sketch9 = body.newObject("Sketcher::SketchObject", "Sketch008")
sketch9.AttachmentSupport = (doc.getObject("XZ_Plane"), [""])
sketch9.MapMode = "FlatFace"
sketch9.addGeometry(Part.Circle(V(133.2, 27.1, 0), V(0, 0, 1), 4.1), False)
sketch9.addGeometry(Part.Circle(V(100, 102.9, 0), V(0, 0, 1), 4.1), False)
sketch9.addGeometry(Part.Circle(V(73.2, 27.1, 0), V(0, 0, 1), 4.1), False)
sketch9.addConstraint(Sketcher.Constraint("Equal", 0, 1))
sketch9.addConstraint(Sketcher.Constraint("Equal", 1, 2))
sketch9.addConstraint(Sketcher.Constraint("Horizontal", 0, 3, 2, 3))
sketch9.addConstraint(Sketcher.Constraint("DistanceX", -1, 1, 1, 3, 100.0))
sketch9.addConstraint(Sketcher.Constraint("DistanceX", 2, 3, 0, 3, 60.0))
sketch9.addConstraint(Sketcher.Constraint("Diameter", 0, 8.1534))
sketch9.addConstraint(Sketcher.Constraint("DistanceX", -1, 1, 0, 3, 133.175))
sketch9.addConstraint(Sketcher.Constraint("DistanceY", -1, 1, 0, 3, 27.120058))
sketch9.addConstraint(Sketcher.Constraint("DistanceY", -1, 1, 1, 3, 102.940115))
pocket3 = body.newObject("PartDesign::Pocket", "Pocket002")
pocket3.Profile = sketch9
pocket3.Length = 6.35
doc.recompute()

fillet = body.newObject("PartDesign::Fillet", "Fillet")
fillet.Base = (pocket3, edges_at(pocket3, [(5, 104.75, 32.093), (5, 104.75, 22.147)]))
fillet.Radius = 10
body4 = doc.addObject("PartDesign::Body", "Body003")

sketch10 = body4.newObject("Sketcher::SketchObject", "Sketch009")
sketch10.AttachmentSupport = (doc.getObject("XZ_Plane003"), [""])
sketch10.MapMode = "FlatFace"
sketch10.AttachmentOffset = App.Placement(V(0, 0, -7), App.Rotation())
add_polygon(sketch10, [(62.5, 56.7), (62.5, 58), (137.5, 58), (137.5, 56.7)])
sketch10.addConstraint(Sketcher.Constraint("Vertical", 0))
sketch10.addConstraint(Sketcher.Constraint("Horizontal", 1))
sketch10.addConstraint(Sketcher.Constraint("Vertical", 2))
sketch10.addConstraint(Sketcher.Constraint("Horizontal", 3))
sketch10.addConstraint(Sketcher.Constraint("DistanceX", 1, 1, 1, 2, 75.0))
sketch10.addConstraint(Sketcher.Constraint("DistanceY", 0, 1, 0, 2, 1.25))
sketch10.addConstraint(Sketcher.Constraint("DistanceX", -1, 1, 0, 2, 62.5))
sketch10.addConstraint(Sketcher.Constraint("DistanceY", -1, 1, 0, 2, 57.990115))
pad7 = body4.newObject("PartDesign::Pad", "Pad006")
pad7.Profile = sketch10
pad7.Length = 75
pad7.Reversed = True
body5 = doc.addObject("PartDesign::Body", "Body004")

sketch11 = body5.newObject("Sketcher::SketchObject", "Sketch010")
sketch11.AttachmentSupport = (doc.getObject("XZ_Plane004"), [""])
sketch11.MapMode = "FlatFace"
sketch11.AttachmentOffset = App.Placement(V(0, 0, -7), App.Rotation())
add_polygon(sketch11, [(127.2, 53), (74.2, 0), (73.5, 0.7), (126.5, 53.7)])
sketch11.addConstraint(Sketcher.Constraint("PointOnObject", 0, 2, -1))
sketch11.addConstraint(Sketcher.Constraint("Perpendicular", 0, 1))
sketch11.addConstraint(Sketcher.Constraint("Perpendicular", 1, 2))
sketch11.addConstraint(Sketcher.Constraint("Perpendicular", 2, 3))
sketch11.addConstraint(Sketcher.Constraint("Angle", 0, Q("-135 deg")))
sketch11.addConstraint(Sketcher.Constraint("Distance", 0, 75.0))
sketch11.addConstraint(Sketcher.Constraint("Distance", 1, 1.0))
sketch11.addConstraint(Sketcher.Constraint("DistanceX", -1, 1, 3, 2, 127.223611))
pad8 = body5.newObject("PartDesign::Pad", "Pad007")
pad8.Profile = sketch11
pad8.Length = 75
pad8.Reversed = True
body6 = doc.addObject("PartDesign::Body", "Body005")

sketch12 = body6.newObject("Sketcher::SketchObject", "Sketch011")
sketch12.AttachmentSupport = (doc.getObject("XZ_Plane005"), [""])
sketch12.MapMode = "FlatFace"
sketch12.AttachmentOffset = App.Placement(V(0, 0, -82.5), App.Rotation())
add_polygon(sketch12, [(193.2, -13.2), (10, -13.2), (10, -10), (190, -10), (190, 64.2), (148, 64.2), (148, 140.4), (52, 140.4), (52, 64.2), (10, 64.2), (10, 67.4), (48.8, 67.4), (48.8, 143.6), (151.2, 143.6), (151.2, 67.4), (193.2, 67.4)])
sketch12.addConstraint(Sketcher.Constraint("Horizontal", 0))
sketch12.addConstraint(Sketcher.Constraint("Vertical", 1))
sketch12.addConstraint(Sketcher.Constraint("Horizontal", 2))
sketch12.addConstraint(Sketcher.Constraint("Vertical", 3))
sketch12.addConstraint(Sketcher.Constraint("Horizontal", 4))
sketch12.addConstraint(Sketcher.Constraint("Vertical", 5))
sketch12.addConstraint(Sketcher.Constraint("Horizontal", 6))
sketch12.addConstraint(Sketcher.Constraint("Vertical", 7))
sketch12.addConstraint(Sketcher.Constraint("Horizontal", 8))
sketch12.addConstraint(Sketcher.Constraint("Vertical", 9))
sketch12.addConstraint(Sketcher.Constraint("Horizontal", 10))
sketch12.addConstraint(Sketcher.Constraint("Vertical", 11))
sketch12.addConstraint(Sketcher.Constraint("Horizontal", 12))
sketch12.addConstraint(Sketcher.Constraint("Vertical", 13))
sketch12.addConstraint(Sketcher.Constraint("Horizontal", 14))
sketch12.addConstraint(Sketcher.Constraint("Vertical", 15))
sketch12.addConstraint(Sketcher.Constraint("Horizontal", 4, 2, 7, 2))
sketch12.addConstraint(Sketcher.Constraint("Horizontal", 10, 2, 13, 2))
sketch12.addConstraint(Sketcher.Constraint("Vertical", 1, 2, 8, 2))
sketch12.addConstraint(Sketcher.Constraint("Equal", 4, 8))
sketch12.addConstraint(Sketcher.Constraint("Equal", 8, 14))
sketch12.addConstraint(Sketcher.Constraint("Equal", 1, 9))
sketch12.addConstraint(Sketcher.Constraint("Equal", 7, 11))
sketch12.addConstraint(Sketcher.Constraint("DistanceX", 2, 1, 2, 2, 180.0))
sketch12.addConstraint(Sketcher.Constraint("DistanceX", 4, 2, 4, 1, 42.0))
sketch12.addConstraint(Sketcher.Constraint("DistanceY", 5, 1, 5, 2, 76.2))
sketch12.addConstraint(Sketcher.Constraint("DistanceX", -1, 1, 0, 2, 10.0))
sketch12.addConstraint(Sketcher.Constraint("DistanceY", 1, 2, -1, 1, 10.0))
sketch12.addConstraint(Sketcher.Constraint("DistanceX", 12, 1, 12, 2, 102.35))
sketch12.addConstraint(Sketcher.Constraint("DistanceX", 0, 2, 0, 1, 183.175))
sketch12.addConstraint(Sketcher.Constraint("DistanceY", 1, 1, 1, 2, 3.175))
sketch12.addConstraint(Sketcher.Constraint("DistanceY", 3, 1, 3, 2, 74.240115))
pad9 = body6.newObject("PartDesign::Pad", "Pad008")
pad9.Profile = sketch12
pad9.Type = "TwoLengths"
pad9.Length = 3
pad9.Length2 = 3
pad9.Reversed = True
doc.recompute()

chamfer2 = body6.newObject("PartDesign::Chamfer", "Chamfer001")
chamfer2.Base = (pad9, edges_at(pad9, [
    (29.413, 79.5, 67.415),
    (48.825, 79.5, 105.515),
    (100, 79.5, 143.615),
    (151.175, 79.5, 105.515),
    (172.175, 79.5, 67.415),
    (193.175, 79.5, 27.12),
    (101.588, 79.5, -13.175),
]))
chamfer2.Size = 2.5

doc.recompute()
